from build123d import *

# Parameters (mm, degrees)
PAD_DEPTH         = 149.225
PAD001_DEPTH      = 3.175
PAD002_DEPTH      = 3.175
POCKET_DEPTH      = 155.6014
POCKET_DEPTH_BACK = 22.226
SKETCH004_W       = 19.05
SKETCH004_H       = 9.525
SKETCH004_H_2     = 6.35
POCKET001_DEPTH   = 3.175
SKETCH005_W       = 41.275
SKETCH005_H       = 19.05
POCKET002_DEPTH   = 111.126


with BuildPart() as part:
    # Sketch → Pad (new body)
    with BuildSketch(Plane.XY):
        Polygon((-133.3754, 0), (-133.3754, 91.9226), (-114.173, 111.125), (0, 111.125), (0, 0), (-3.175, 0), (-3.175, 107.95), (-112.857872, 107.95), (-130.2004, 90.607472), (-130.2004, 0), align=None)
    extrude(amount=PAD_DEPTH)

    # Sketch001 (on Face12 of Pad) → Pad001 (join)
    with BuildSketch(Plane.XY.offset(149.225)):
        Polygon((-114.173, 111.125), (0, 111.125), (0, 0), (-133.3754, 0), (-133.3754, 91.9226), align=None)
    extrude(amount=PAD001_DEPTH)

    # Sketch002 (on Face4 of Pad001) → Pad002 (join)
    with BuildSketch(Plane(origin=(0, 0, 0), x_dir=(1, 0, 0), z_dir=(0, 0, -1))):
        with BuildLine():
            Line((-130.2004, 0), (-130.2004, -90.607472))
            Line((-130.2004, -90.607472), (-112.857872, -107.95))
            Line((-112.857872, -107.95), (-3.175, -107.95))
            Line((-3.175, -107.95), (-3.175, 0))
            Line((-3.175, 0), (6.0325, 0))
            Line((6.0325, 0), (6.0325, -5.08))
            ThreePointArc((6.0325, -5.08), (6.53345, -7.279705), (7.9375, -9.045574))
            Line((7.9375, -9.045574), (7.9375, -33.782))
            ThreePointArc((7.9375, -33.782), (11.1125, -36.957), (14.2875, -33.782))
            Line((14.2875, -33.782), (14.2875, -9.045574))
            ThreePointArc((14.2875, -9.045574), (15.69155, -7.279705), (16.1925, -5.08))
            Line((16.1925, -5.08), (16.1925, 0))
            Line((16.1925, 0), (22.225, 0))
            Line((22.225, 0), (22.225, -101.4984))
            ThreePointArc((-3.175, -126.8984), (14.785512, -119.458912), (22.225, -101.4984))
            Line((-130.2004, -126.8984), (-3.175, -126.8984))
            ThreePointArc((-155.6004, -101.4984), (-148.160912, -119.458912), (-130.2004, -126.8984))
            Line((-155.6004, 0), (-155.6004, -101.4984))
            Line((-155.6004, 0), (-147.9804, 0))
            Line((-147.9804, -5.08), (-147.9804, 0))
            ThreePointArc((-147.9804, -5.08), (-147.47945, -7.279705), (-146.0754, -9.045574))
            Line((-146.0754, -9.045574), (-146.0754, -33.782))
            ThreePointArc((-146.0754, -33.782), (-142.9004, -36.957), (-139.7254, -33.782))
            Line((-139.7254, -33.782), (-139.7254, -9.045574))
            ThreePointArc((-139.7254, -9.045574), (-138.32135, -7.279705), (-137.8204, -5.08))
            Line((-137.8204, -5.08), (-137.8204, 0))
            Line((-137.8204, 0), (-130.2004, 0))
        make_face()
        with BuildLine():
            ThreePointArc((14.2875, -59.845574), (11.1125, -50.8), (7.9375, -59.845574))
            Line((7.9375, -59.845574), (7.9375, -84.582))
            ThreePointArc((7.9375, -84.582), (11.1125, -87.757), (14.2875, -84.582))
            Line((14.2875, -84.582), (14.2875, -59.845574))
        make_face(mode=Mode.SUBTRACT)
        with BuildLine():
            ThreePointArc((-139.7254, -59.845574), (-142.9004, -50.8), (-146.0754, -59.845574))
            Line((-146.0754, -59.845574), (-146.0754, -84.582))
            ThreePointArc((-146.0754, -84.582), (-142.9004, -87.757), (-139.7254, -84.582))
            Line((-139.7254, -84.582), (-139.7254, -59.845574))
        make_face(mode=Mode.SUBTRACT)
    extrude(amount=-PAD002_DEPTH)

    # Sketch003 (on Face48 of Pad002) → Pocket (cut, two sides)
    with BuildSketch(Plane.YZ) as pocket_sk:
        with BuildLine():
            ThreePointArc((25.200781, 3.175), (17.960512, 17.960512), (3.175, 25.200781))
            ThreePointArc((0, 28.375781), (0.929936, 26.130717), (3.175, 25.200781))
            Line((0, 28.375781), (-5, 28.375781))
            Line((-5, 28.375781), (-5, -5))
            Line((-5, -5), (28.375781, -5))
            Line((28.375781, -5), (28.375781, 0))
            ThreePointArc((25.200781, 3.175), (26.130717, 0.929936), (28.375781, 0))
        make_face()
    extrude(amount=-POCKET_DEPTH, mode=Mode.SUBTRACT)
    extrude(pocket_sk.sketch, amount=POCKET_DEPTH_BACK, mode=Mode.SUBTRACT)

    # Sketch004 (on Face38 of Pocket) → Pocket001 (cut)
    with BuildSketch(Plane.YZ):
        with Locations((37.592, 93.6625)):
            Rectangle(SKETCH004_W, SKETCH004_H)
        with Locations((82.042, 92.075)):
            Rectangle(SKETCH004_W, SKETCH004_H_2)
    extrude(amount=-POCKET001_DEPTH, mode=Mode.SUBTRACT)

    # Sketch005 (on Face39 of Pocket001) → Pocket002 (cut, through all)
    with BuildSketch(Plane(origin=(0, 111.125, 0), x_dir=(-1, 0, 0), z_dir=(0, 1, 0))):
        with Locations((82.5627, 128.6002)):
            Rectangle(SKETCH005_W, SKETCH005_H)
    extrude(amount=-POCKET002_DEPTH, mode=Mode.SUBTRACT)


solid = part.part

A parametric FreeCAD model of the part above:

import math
import FreeCAD as App
import Part
import Sketcher
from FreeCAD import Vector
Q = App.Units.Quantity

doc = App.newDocument("Part")
body = doc.addObject("PartDesign::Body", "Body")

sketch1 = body.newObject("Sketcher::SketchObject", "Sketch")
sketch1.AttachmentSupport = (doc.getObject("XY_Plane"), [""])
sketch1.MapMode = "FlatFace"
sketch1.addGeometry([
    Part.LineSegment(Vector(-133.4, 91.9, 0), Vector(-133.4, 0, 0)),
    Part.LineSegment(Vector(-133.4, 0, 0), Vector(-130.2, 0, 0)),
    Part.LineSegment(Vector(-130.2, 0, 0), Vector(-130.2, 90.6, 0)),
    Part.LineSegment(Vector(-130.2, 90.6, 0), Vector(-112.9, 108, 0)),
    Part.LineSegment(Vector(-112.9, 108, 0), Vector(-3.2, 108, 0)),
    Part.LineSegment(Vector(-3.2, 108, 0), Vector(-3.2, 0, 0)),
    Part.LineSegment(Vector(-3.2, 0, 0), Vector(0, 0, 0)),
    Part.LineSegment(Vector(0, 0, 0), Vector(0, 111.1, 0)),
    Part.LineSegment(Vector(0, 111.1, 0), Vector(-114.2, 111.1, 0)),
    Part.LineSegment(Vector(-114.2, 111.1, 0), Vector(-133.4, 91.9, 0)),
], False)
sketch1.addConstraint([
    Sketcher.Constraint("Coincident", 0, 2, 1, 1),
    Sketcher.Constraint("Coincident", 1, 2, 2, 1),
    Sketcher.Constraint("Coincident", 2, 2, 3, 1),
    Sketcher.Constraint("Coincident", 3, 2, 4, 1),
    Sketcher.Constraint("Coincident", 4, 2, 5, 1),
    Sketcher.Constraint("Coincident", 5, 2, 6, 1),
    Sketcher.Constraint("Coincident", 6, 2, 7, 1),
    Sketcher.Constraint("Coincident", 7, 2, 8, 1),
    Sketcher.Constraint("Coincident", 8, 2, 9, 1),
    Sketcher.Constraint("Coincident", 9, 2, 0, 1),
    Sketcher.Constraint("Vertical", 0),
    Sketcher.Constraint("Horizontal", 1),
    Sketcher.Constraint("Vertical", 2),
    Sketcher.Constraint("Horizontal", 4),
    Sketcher.Constraint("Vertical", 5),
    Sketcher.Constraint("Horizontal", 6),
    Sketcher.Constraint("Vertical", 7),
    Sketcher.Constraint("Horizontal", 8),
    Sketcher.Constraint("Coincident", 6, 2, -1, 1),
    Sketcher.Constraint("PointOnObject", 0, 2, -1),
    Sketcher.Constraint("Parallel", 3, 9),
    Sketcher.Constraint("Equal", 1, 6),
    Sketcher.Constraint("Angle", 3, Q("45 deg")),
    Sketcher.Constraint("DistanceY", 5, 2, 5, 1, Q("4.25 in")),
    Sketcher.Constraint("DistanceX", 1, 1, 1, 2, Q("0.125 in")),
    Sketcher.Constraint("DistanceX", 8, 2, 8, 1, Q("4.495 in")),
    Sketcher.Constraint("DistanceY", 0, 2, 0, 1, Q("3.619 in")),
    Sketcher.Constraint("DistanceY", 7, 1, 7, 2, Q("4.375 in")),
    Sketcher.Constraint("DistanceY", 2, 1, 2, 2, Q("90.607472 mm")),
])
pad1 = body.newObject("PartDesign::Pad", "Pad")
pad1.Profile = sketch1
pad1.Length = Q("5.875 in")

sketch2 = body.newObject("Sketcher::SketchObject", "Sketch001")
sketch2.AttachmentSupport = (doc.getObject("XY_Plane"), [""])
sketch2.MapMode = "FlatFace"
sketch2.AttachmentOffset = App.Placement(Vector(0, 0, 5.875 * 25.4), App.Rotation())
sketch2.addGeometry([
    Part.LineSegment(Vector(0, 111, 0), Vector(-114, 111, 0)),
    Part.LineSegment(Vector(-114, 111, 0), Vector(-133, 92, 0)),
    Part.LineSegment(Vector(-133, 92, 0), Vector(-133, 0, 0)),
    Part.LineSegment(Vector(-133, 0, 0), Vector(0, 0, 0)),
    Part.LineSegment(Vector(0, 0, 0), Vector(0, 111, 0)),
], False)
sketch2.addConstraint([
    Sketcher.Constraint("Coincident", 0, 2, 1, 1),
    Sketcher.Constraint("Coincident", 1, 2, 2, 1),
    Sketcher.Constraint("Coincident", 2, 2, 3, 1),
    Sketcher.Constraint("Coincident", 3, 2, 4, 1),
    Sketcher.Constraint("Coincident", 4, 2, 0, 1),
    Sketcher.Constraint("Horizontal", 0),
    Sketcher.Constraint("Vertical", 2),
    Sketcher.Constraint("Horizontal", 3),
    Sketcher.Constraint("Vertical", 4),
    Sketcher.Constraint("Coincident", 3, 2, -1, 1),
    Sketcher.Constraint("Angle", 1, Q("-135 deg")),
    Sketcher.Constraint("DistanceX", 0, 2, 0, 1, Q("4.495 in")),
    Sketcher.Constraint("DistanceX", 3, 1, 3, 2, Q("5.251 in")),
    Sketcher.Constraint("DistanceY", 2, 2, 2, 1, Q("3.619 in")),
])
pad2 = body.newObject("PartDesign::Pad", "Pad001")
pad2.Profile = sketch2
pad2.Length = Q("0.125 in")

sketch3 = body.newObject("Sketcher::SketchObject", "Sketch002")
sketch3.AttachmentSupport = (doc.getObject("XY_Plane"), [""])
sketch3.MapMode = "FlatFace"
sketch3.addGeometry([
    Part.LineSegment(Vector(-130.2, 90.6, 0), Vector(-130.2, 0, 0)),
    Part.LineSegment(Vector(-130.2, 0, 0), Vector(-137.8, 0, 0)),
    Part.LineSegment(Vector(-137.8, 0, 0), Vector(-137.8, 5.1, 0)),
    Part.ArcOfCircle(Part.Circle(Vector(-142.9, 5.1, 0), Vector(0, 0, 1), 5.1), math.radians(0), math.radians(51)),
    Part.LineSegment(Vector(-139.7, 9, 0), Vector(-139.7, 33.8, 0)),
    Part.ArcOfCircle(Part.Circle(Vector(-142.9, 33.8, 0), Vector(0, 0, 1), 3.2), math.radians(0), math.radians(180)),
    Part.LineSegment(Vector(-146.1, 33.8, 0), Vector(-146.1, 9, 0)),
    Part.ArcOfCircle(Part.Circle(Vector(-142.9, 5.1, 0), Vector(0, 0, 1), 5.1), math.radians(129), math.radians(180)),
    Part.LineSegment(Vector(-148, 5.1, 0), Vector(-148, 0, 0)),
    Part.LineSegment(Vector(-148, 0, 0), Vector(-155.6, 0, 0)),
    Part.LineSegment(Vector(-155.6, 0, 0), Vector(-155.6, 101.5, 0)),
    Part.ArcOfCircle(Part.Circle(Vector(-130.2, 101.5, 0), Vector(0, 0, 1), 25.4), math.radians(90), math.radians(180)),
    Part.LineSegment(Vector(-130.2, 126.9, 0), Vector(-3.2, 126.9, 0)),
    Part.ArcOfCircle(Part.Circle(Vector(-3.2, 101.5, 0), Vector(0, 0, 1), 25.4), math.radians(0), math.radians(90)),
    Part.LineSegment(Vector(22.2, 101.5, 0), Vector(22.2, 0, 0)),
    Part.LineSegment(Vector(22.2, 0, 0), Vector(16.2, 0, 0)),
    Part.LineSegment(Vector(16.2, 0, 0), Vector(16.2, 5.1, 0)),
    Part.ArcOfCircle(Part.Circle(Vector(11.1, 5.1, 0), Vector(0, 0, 1), 5.1), math.radians(0), math.radians(51)),
    Part.LineSegment(Vector(14.3, 9, 0), Vector(14.3, 33.8, 0)),
    Part.ArcOfCircle(Part.Circle(Vector(11.1, 33.8, 0), Vector(0, 0, 1), 3.2), math.radians(0), math.radians(180)),
    Part.LineSegment(Vector(7.9, 33.8, 0), Vector(7.9, 9, 0)),
    Part.ArcOfCircle(Part.Circle(Vector(11.1, 5.1, 0), Vector(0, 0, 1), 5.1), math.radians(129), math.radians(180)),
    Part.LineSegment(Vector(6, 5.1, 0), Vector(6, 0, 0)),
    Part.LineSegment(Vector(6, 0, 0), Vector(-3.2, 0, 0)),
    Part.LineSegment(Vector(-3.2, 0, 0), Vector(-3.2, 108, 0)),
    Part.LineSegment(Vector(-3.2, 108, 0), Vector(-112.9, 108, 0)),
    Part.LineSegment(Vector(-112.9, 108, 0), Vector(-130.2, 90.6, 0)),
    Part.LineSegment(Vector(14.3, 59.8, 0), Vector(14.3, 84.6, 0)),
    Part.ArcOfCircle(Part.Circle(Vector(11.1, 84.6, 0), Vector(0, 0, 1), 3.2), math.radians(0), math.radians(180)),
    Part.LineSegment(Vector(7.9, 84.6, 0), Vector(7.9, 59.8, 0)),
    Part.ArcOfCircle(Part.Circle(Vector(11.1, 55.9, 0), Vector(0, 0, 1), 5.1), math.radians(129), math.radians(411)),
    Part.LineSegment(Vector(-139.7, 59.8, 0), Vector(-139.7, 84.6, 0)),
    Part.ArcOfCircle(Part.Circle(Vector(-142.9, 84.6, 0), Vector(0, 0, 1), 3.2), math.radians(0), math.radians(180)),
    Part.LineSegment(Vector(-146.1, 84.6, 0), Vector(-146.1, 59.8, 0)),
    Part.ArcOfCircle(Part.Circle(Vector(-142.9, 55.9, 0), Vector(0, 0, 1), 5.1), math.radians(129), math.radians(411)),
], False)
sketch3.addConstraint([
    Sketcher.Constraint("Coincident", 0, 2, 1, 1),
    Sketcher.Constraint("Coincident", 1, 2, 2, 1),
    Sketcher.Constraint("Tangent", 2, 2, 3, 1),
    Sketcher.Constraint("Coincident", 3, 2, 4, 1),
    Sketcher.Constraint("Tangent", 4, 2, 5, 1),
    Sketcher.Constraint("Tangent", 5, 2, 6, 1),
    Sketcher.Constraint("Coincident", 6, 2, 7, 1),
    Sketcher.Constraint("Tangent", 7, 2, 8, 1),
    Sketcher.Constraint("Coincident", 8, 2, 9, 1),
    Sketcher.Constraint("Coincident", 9, 2, 10, 1),
    Sketcher.Constraint("Tangent", 10, 2, 11, 2),
    Sketcher.Constraint("Tangent", 11, 1, 12, 1),
    Sketcher.Constraint("Tangent", 12, 2, 13, 2),
    Sketcher.Constraint("Tangent", 13, 1, 14, 1),
    Sketcher.Constraint("Coincident", 14, 2, 15, 1),
    Sketcher.Constraint("Coincident", 15, 2, 16, 1),
    Sketcher.Constraint("Tangent", 16, 2, 17, 1),
    Sketcher.Constraint("Coincident", 17, 2, 18, 1),
    Sketcher.Constraint("Tangent", 18, 2, 19, 1),
    Sketcher.Constraint("Tangent", 19, 2, 20, 1),
    Sketcher.Constraint("Coincident", 20, 2, 21, 1),
    Sketcher.Constraint("Tangent", 21, 2, 22, 1),
    Sketcher.Constraint("Coincident", 22, 2, 23, 1),
    Sketcher.Constraint("Coincident", 23, 2, 24, 1),
    Sketcher.Constraint("Coincident", 24, 2, 25, 1),
    Sketcher.Constraint("Coincident", 25, 2, 26, 1),
    Sketcher.Constraint("Coincident", 26, 2, 0, 1),
    Sketcher.Constraint("Tangent", 27, 2, 28, 1),
    Sketcher.Constraint("Tangent", 28, 2, 29, 1),
    Sketcher.Constraint("Coincident", 29, 2, 30, 1),
    Sketcher.Constraint("Coincident", 30, 2, 27, 1),
    Sketcher.Constraint("Tangent", 31, 2, 32, 1),
    Sketcher.Constraint("Tangent", 32, 2, 33, 1),
    Sketcher.Constraint("Coincident", 33, 2, 34, 1),
    Sketcher.Constraint("Coincident", 34, 2, 31, 1),
    Sketcher.Constraint("Vertical", 0),
    Sketcher.Constraint("Horizontal", 1),
    Sketcher.Constraint("Vertical", 2),
    Sketcher.Constraint("Vertical", 4),
    Sketcher.Constraint("Vertical", 6),
    Sketcher.Constraint("Vertical", 8),
    Sketcher.Constraint("Horizontal", 9),
    Sketcher.Constraint("Vertical", 10),
    Sketcher.Constraint("Horizontal", 12),
    Sketcher.Constraint("Vertical", 14),
    Sketcher.Constraint("Horizontal", 15),
    Sketcher.Constraint("Vertical", 16),
    Sketcher.Constraint("Vertical", 18),
    Sketcher.Constraint("Vertical", 20),
    Sketcher.Constraint("Vertical", 22),
    Sketcher.Constraint("Horizontal", 23),
    Sketcher.Constraint("Vertical", 24),
    Sketcher.Constraint("Horizontal", 25),
    Sketcher.Constraint("Vertical", 27),
    Sketcher.Constraint("Vertical", 29),
    Sketcher.Constraint("Vertical", 31),
    Sketcher.Constraint("Vertical", 33),
    Sketcher.Constraint("Coincident", 7, 3, 3, 3),
    Sketcher.Constraint("Coincident", 21, 3, 17, 3),
    Sketcher.Constraint("Equal", 3, 7),
    Sketcher.Constraint("Equal", 11, 13),
    Sketcher.Constraint("Equal", 7, 17),
    Sketcher.Constraint("Equal", 5, 19),
    Sketcher.Constraint("Equal", 17, 21),
    Sketcher.Constraint("Equal", 19, 28),
    Sketcher.Constraint("Equal", 21, 30),
    Sketcher.Constraint("Equal", 28, 32),
    Sketcher.Constraint("Equal", 30, 34),
    Sketcher.Constraint("PointOnObject", 0, 2, -1),
    Sketcher.Constraint("PointOnObject", 8, 2, -1),
    Sketcher.Constraint("PointOnObject", 14, 2, -1),
    Sketcher.Constraint("PointOnObject", 22, 2, -1),
    Sketcher.Constraint("Horizontal", 7, 3, 17, 3),
    Sketcher.Constraint("Horizontal", 5, 3, 19, 3),
    Sketcher.Constraint("Horizontal", 28, 3, 32, 3),
    Sketcher.Constraint("Horizontal", 30, 3, 34, 3),
    Sketcher.Constraint("Horizontal", 3, 2, 6, 2),
    Sketcher.Constraint("Horizontal", 6, 2, 17, 2),
    Sketcher.Constraint("Horizontal", 29, 2, 30, 2),
    Sketcher.Constraint("Horizontal", 30, 2, 33, 2),
    Sketcher.Constraint("Vertical", 21, 3, 28, 3),
    Sketcher.Constraint("Vertical", 7, 3, 32, 3),
    Sketcher.Constraint("Vertical", 11, 3, 0, 2),
    Sketcher.Constraint("Vertical", 12, 2, 23, 2),
    Sketcher.Constraint("Equal", 1, 9),
    Sketcher.Constraint("Equal", 20, 27),
    Sketcher.Constraint("Radius", 11, Q("1 in")),
    Sketcher.Constraint("Radius", 3, Q("0.2 in")),
    Sketcher.Constraint("DistanceY", 2, 1, 2, 2, Q("0.2 in")),
    Sketcher.Constraint("Angle", 26, Q("-135 deg")),
    Sketcher.Constraint("Radius", 5, Q("0.125 in")),
    Sketcher.Constraint("DistanceY", 19, 3, 28, 3, Q("2 in")),
    Sketcher.Constraint("DistanceY", 24, 1, 24, 2, Q("4.25 in")),
    Sketcher.Constraint("DistanceX", 12, 1, 12, 2, Q("5.001 in")),
    Sketcher.Constraint("DistanceY", 10, 1, 10, 2, Q("3.996 in")),
    Sketcher.Constraint("DistanceY", -1, 1, 5, 3, Q("1.33 in")),
    Sketcher.Constraint("DistanceX", 15, 2, 15, 1, Q("0.2375 in")),
    Sketcher.Constraint("DistanceX", 3, 3, -1, 1, Q("5.626 in")),
    Sketcher.Constraint("DistanceY", 0, 2, 0, 1, Q("90.607472 mm")),
])
pad3 = body.newObject("PartDesign::Pad", "Pad002")
pad3.Profile = sketch3
pad3.Length = Q("0.125 in")

sketch4 = body.newObject("Sketcher::SketchObject", "Sketch003")
sketch4.AttachmentSupport = (doc.getObject("YZ_Plane"), [""])
sketch4.MapMode = "FlatFace"
sketch4.addGeometry([
    Part.ArcOfCircle(Part.Circle(Vector(0, 0, 0), Vector(0, 0, 1), 25.4), math.radians(7), math.radians(83)),
    Part.ArcOfCircle(Part.Circle(Vector(3.2, 28.4, 0), Vector(0, 0, 1), 3.2), math.radians(-180), math.radians(-90)),
    Part.LineSegment(Vector(0, 28.4, 0), Vector(-5, 28.4, 0)),
    Part.LineSegment(Vector(-5, 28.4, 0), Vector(-5, -5, 0)),
    Part.LineSegment(Vector(-5, -5, 0), Vector(28.4, -5, 0)),
    Part.LineSegment(Vector(28.4, -5, 0), Vector(28.4, 0, 0)),
    Part.ArcOfCircle(Part.Circle(Vector(28.4, 3.2, 0), Vector(0, 0, 1), 3.2), math.radians(-180), math.radians(-90)),
], False)
sketch4.addConstraint([
    Sketcher.Constraint("Coincident", 0, 2, 1, 2),
    Sketcher.Constraint("Coincident", 1, 1, 2, 1),
    Sketcher.Constraint("Coincident", 2, 2, 3, 1),
    Sketcher.Constraint("Coincident", 3, 2, 4, 1),
    Sketcher.Constraint("Coincident", 4, 2, 5, 1),
    Sketcher.Constraint("Coincident", 5, 2, 6, 2),
    Sketcher.Constraint("Coincident", 6, 1, 0, 1),
    Sketcher.Constraint("Horizontal", 2),
    Sketcher.Constraint("Vertical", 3),
    Sketcher.Constraint("Horizontal", 4),
    Sketcher.Constraint("Vertical", 5),
    Sketcher.Constraint("Coincident", 0, 3, -1, 1),
    Sketcher.Constraint("Equal", 1, 6),
    Sketcher.Constraint("PointOnObject", 1, 1, -2),
    Sketcher.Constraint("PointOnObject", 5, 2, -1),
    Sketcher.Constraint("Vertical", 1, 3, 0, 2),
    Sketcher.Constraint("Vertical", 6, 3, 4, 2),
    Sketcher.Constraint("Equal", 4, 3),
    Sketcher.Constraint("Equal", 2, 5),
    Sketcher.Constraint("Radius", 0, Q("1 in")),
    Sketcher.Constraint("Radius", 1, Q("0.125 in")),
    Sketcher.Constraint("DistanceY", -1, 1, 6, 1, Q("0.125 in")),
    Sketcher.Constraint("DistanceX", 2, 2, 2, 1, Q("5 mm")),
])
pocket1 = body.newObject("PartDesign::Pocket", "Pocket")
pocket1.Profile = sketch4
pocket1.Type = "ThroughAll"
pocket1.Midplane = True

sketch5 = body.newObject("Sketcher::SketchObject", "Sketch004")
sketch5.AttachmentSupport = (doc.getObject("YZ_Plane"), [""])
sketch5.MapMode = "FlatFace"
sketch5.addGeometry([
    Part.LineSegment(Vector(28, 98, 0), Vector(28, 89, 0)),
    Part.LineSegment(Vector(28, 89, 0), Vector(47, 89, 0)),
    Part.LineSegment(Vector(47, 89, 0), Vector(47, 98, 0)),
    Part.LineSegment(Vector(47, 98, 0), Vector(28, 98, 0)),
    Part.LineSegment(Vector(73, 95, 0), Vector(73, 89, 0)),
    Part.LineSegment(Vector(73, 89, 0), Vector(92, 89, 0)),
    Part.LineSegment(Vector(92, 89, 0), Vector(92, 95, 0)),
    Part.LineSegment(Vector(92, 95, 0), Vector(73, 95, 0)),
], False)
sketch5.addConstraint([
    Sketcher.Constraint("Coincident", 0, 2, 1, 1),
    Sketcher.Constraint("Coincident", 1, 2, 2, 1),
    Sketcher.Constraint("Coincident", 2, 2, 3, 1),
    Sketcher.Constraint("Coincident", 3, 2, 0, 1),
    Sketcher.Constraint("Coincident", 4, 2, 5, 1),
    Sketcher.Constraint("Coincident", 5, 2, 6, 1),
    Sketcher.Constraint("Coincident", 6, 2, 7, 1),
    Sketcher.Constraint("Coincident", 7, 2, 4, 1),
    Sketcher.Constraint("Vertical", 0),
    Sketcher.Constraint("Horizontal", 1),
    Sketcher.Constraint("Vertical", 2),
    Sketcher.Constraint("Horizontal", 3),
    Sketcher.Constraint("Vertical", 4),
    Sketcher.Constraint("Horizontal", 5),
    Sketcher.Constraint("Vertical", 6),
    Sketcher.Constraint("Horizontal", 7),
    Sketcher.Constraint("Horizontal", 1, 2, 4, 2),
    Sketcher.Constraint("Equal", 3, 5),
    Sketcher.Constraint("DistanceX", 1, 2, 4, 2, Q("1 in")),
    Sketcher.Constraint("DistanceX", 1, 1, 1, 2, Q("0.75 in")),
    Sketcher.Constraint("DistanceY", 4, 2, 4, 1, Q("0.25 in")),
    Sketcher.Constraint("DistanceY", -1, 1, 0, 2, Q("3.5 in")),
    Sketcher.Constraint("DistanceY", 0, 2, 0, 1, Q("0.375 in")),
    Sketcher.Constraint("DistanceX", -1, 1, 0, 2, Q("1.105 in")),
])
pocket2 = body.newObject("PartDesign::Pocket", "Pocket001")
pocket2.Profile = sketch5
pocket2.Length = Q("0.125 in")

sketch6 = body.newObject("Sketcher::SketchObject", "Sketch005")
sketch6.AttachmentSupport = (doc.getObject("XZ_Plane"), [""])
sketch6.MapMode = "FlatFace"
sketch6.AttachmentOffset = App.Placement(Vector(0, 0, -4.375 * 25.4), App.Rotation())
sketch6.addGeometry([
    Part.LineSegment(Vector(-62, 138, 0), Vector(-62, 119, 0)),
    Part.LineSegment(Vector(-62, 119, 0), Vector(-103, 119, 0)),
    Part.LineSegment(Vector(-103, 119, 0), Vector(-103, 138, 0)),
    Part.LineSegment(Vector(-103, 138, 0), Vector(-62, 138, 0)),
], False)
sketch6.addConstraint([
    Sketcher.Constraint("Coincident", 0, 2, 1, 1),
    Sketcher.Constraint("Coincident", 1, 2, 2, 1),
    Sketcher.Constraint("Coincident", 2, 2, 3, 1),
    Sketcher.Constraint("Coincident", 3, 2, 0, 1),
    Sketcher.Constraint("Vertical", 0),
    Sketcher.Constraint("Horizontal", 1),
    Sketcher.Constraint("Vertical", 2),
    Sketcher.Constraint("Horizontal", 3),
    Sketcher.Constraint("DistanceY", 0, 2, 0, 1, Q("0.75 in")),
    Sketcher.Constraint("DistanceX", 1, 2, 1, 1, Q("1.625 in")),
    Sketcher.Constraint("DistanceX", 0, 2, -1, 1, Q("2.438 in")),
    Sketcher.Constraint("DistanceY", -1, 1, 0, 2, Q("4.688 in")),
])
pocket3 = body.newObject("PartDesign::Pocket", "Pocket002")
pocket3.Profile = sketch6
pocket3.Type = "ThroughAll"
pocket3.Reversed = True

doc.recompute()
